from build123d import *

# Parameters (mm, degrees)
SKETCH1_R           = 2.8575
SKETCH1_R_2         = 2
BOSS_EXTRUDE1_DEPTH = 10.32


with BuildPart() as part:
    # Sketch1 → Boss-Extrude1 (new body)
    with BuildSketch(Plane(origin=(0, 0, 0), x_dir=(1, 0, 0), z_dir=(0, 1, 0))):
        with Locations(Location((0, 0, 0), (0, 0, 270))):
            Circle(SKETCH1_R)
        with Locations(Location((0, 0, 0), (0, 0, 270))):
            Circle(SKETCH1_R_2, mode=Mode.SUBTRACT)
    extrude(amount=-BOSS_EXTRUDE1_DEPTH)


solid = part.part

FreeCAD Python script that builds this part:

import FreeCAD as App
import Part
import Sketcher
from FreeCAD import Vector
Q = App.Units.Quantity

doc = App.newDocument("Part")
body = doc.addObject("PartDesign::Body", "Body")

# Sketch on XZ plane
sketch1 = body.newObject("Sketcher::SketchObject", "Sketch")
sketch1.AttachmentSupport = (doc.getObject("XZ_Plane"), [""])
sketch1.MapMode = "FlatFace"
sketch1.addGeometry(Part.Circle(Vector(0, 0, 0), Vector(0, 0, 1), 2.8575), False)
sketch1.addGeometry(Part.Circle(Vector(0, 0, 0), Vector(0, 0, 1), 2), False)
sketch1.addConstraint(Sketcher.Constraint("Coincident", 0, 3, -1, 1))
sketch1.addConstraint(Sketcher.Constraint("Coincident", 1, 3, -1, 1))
sketch1.addConstraint(Sketcher.Constraint("Diameter", 1, Q("4 mm")))
sketch1.addConstraint(Sketcher.Constraint("Diameter", 0, Q("5.715 mm")))
pad1 = body.newObject("PartDesign::Pad", "Pad")
pad1.Profile = sketch1
pad1.Length = 10.32

doc.recompute()
